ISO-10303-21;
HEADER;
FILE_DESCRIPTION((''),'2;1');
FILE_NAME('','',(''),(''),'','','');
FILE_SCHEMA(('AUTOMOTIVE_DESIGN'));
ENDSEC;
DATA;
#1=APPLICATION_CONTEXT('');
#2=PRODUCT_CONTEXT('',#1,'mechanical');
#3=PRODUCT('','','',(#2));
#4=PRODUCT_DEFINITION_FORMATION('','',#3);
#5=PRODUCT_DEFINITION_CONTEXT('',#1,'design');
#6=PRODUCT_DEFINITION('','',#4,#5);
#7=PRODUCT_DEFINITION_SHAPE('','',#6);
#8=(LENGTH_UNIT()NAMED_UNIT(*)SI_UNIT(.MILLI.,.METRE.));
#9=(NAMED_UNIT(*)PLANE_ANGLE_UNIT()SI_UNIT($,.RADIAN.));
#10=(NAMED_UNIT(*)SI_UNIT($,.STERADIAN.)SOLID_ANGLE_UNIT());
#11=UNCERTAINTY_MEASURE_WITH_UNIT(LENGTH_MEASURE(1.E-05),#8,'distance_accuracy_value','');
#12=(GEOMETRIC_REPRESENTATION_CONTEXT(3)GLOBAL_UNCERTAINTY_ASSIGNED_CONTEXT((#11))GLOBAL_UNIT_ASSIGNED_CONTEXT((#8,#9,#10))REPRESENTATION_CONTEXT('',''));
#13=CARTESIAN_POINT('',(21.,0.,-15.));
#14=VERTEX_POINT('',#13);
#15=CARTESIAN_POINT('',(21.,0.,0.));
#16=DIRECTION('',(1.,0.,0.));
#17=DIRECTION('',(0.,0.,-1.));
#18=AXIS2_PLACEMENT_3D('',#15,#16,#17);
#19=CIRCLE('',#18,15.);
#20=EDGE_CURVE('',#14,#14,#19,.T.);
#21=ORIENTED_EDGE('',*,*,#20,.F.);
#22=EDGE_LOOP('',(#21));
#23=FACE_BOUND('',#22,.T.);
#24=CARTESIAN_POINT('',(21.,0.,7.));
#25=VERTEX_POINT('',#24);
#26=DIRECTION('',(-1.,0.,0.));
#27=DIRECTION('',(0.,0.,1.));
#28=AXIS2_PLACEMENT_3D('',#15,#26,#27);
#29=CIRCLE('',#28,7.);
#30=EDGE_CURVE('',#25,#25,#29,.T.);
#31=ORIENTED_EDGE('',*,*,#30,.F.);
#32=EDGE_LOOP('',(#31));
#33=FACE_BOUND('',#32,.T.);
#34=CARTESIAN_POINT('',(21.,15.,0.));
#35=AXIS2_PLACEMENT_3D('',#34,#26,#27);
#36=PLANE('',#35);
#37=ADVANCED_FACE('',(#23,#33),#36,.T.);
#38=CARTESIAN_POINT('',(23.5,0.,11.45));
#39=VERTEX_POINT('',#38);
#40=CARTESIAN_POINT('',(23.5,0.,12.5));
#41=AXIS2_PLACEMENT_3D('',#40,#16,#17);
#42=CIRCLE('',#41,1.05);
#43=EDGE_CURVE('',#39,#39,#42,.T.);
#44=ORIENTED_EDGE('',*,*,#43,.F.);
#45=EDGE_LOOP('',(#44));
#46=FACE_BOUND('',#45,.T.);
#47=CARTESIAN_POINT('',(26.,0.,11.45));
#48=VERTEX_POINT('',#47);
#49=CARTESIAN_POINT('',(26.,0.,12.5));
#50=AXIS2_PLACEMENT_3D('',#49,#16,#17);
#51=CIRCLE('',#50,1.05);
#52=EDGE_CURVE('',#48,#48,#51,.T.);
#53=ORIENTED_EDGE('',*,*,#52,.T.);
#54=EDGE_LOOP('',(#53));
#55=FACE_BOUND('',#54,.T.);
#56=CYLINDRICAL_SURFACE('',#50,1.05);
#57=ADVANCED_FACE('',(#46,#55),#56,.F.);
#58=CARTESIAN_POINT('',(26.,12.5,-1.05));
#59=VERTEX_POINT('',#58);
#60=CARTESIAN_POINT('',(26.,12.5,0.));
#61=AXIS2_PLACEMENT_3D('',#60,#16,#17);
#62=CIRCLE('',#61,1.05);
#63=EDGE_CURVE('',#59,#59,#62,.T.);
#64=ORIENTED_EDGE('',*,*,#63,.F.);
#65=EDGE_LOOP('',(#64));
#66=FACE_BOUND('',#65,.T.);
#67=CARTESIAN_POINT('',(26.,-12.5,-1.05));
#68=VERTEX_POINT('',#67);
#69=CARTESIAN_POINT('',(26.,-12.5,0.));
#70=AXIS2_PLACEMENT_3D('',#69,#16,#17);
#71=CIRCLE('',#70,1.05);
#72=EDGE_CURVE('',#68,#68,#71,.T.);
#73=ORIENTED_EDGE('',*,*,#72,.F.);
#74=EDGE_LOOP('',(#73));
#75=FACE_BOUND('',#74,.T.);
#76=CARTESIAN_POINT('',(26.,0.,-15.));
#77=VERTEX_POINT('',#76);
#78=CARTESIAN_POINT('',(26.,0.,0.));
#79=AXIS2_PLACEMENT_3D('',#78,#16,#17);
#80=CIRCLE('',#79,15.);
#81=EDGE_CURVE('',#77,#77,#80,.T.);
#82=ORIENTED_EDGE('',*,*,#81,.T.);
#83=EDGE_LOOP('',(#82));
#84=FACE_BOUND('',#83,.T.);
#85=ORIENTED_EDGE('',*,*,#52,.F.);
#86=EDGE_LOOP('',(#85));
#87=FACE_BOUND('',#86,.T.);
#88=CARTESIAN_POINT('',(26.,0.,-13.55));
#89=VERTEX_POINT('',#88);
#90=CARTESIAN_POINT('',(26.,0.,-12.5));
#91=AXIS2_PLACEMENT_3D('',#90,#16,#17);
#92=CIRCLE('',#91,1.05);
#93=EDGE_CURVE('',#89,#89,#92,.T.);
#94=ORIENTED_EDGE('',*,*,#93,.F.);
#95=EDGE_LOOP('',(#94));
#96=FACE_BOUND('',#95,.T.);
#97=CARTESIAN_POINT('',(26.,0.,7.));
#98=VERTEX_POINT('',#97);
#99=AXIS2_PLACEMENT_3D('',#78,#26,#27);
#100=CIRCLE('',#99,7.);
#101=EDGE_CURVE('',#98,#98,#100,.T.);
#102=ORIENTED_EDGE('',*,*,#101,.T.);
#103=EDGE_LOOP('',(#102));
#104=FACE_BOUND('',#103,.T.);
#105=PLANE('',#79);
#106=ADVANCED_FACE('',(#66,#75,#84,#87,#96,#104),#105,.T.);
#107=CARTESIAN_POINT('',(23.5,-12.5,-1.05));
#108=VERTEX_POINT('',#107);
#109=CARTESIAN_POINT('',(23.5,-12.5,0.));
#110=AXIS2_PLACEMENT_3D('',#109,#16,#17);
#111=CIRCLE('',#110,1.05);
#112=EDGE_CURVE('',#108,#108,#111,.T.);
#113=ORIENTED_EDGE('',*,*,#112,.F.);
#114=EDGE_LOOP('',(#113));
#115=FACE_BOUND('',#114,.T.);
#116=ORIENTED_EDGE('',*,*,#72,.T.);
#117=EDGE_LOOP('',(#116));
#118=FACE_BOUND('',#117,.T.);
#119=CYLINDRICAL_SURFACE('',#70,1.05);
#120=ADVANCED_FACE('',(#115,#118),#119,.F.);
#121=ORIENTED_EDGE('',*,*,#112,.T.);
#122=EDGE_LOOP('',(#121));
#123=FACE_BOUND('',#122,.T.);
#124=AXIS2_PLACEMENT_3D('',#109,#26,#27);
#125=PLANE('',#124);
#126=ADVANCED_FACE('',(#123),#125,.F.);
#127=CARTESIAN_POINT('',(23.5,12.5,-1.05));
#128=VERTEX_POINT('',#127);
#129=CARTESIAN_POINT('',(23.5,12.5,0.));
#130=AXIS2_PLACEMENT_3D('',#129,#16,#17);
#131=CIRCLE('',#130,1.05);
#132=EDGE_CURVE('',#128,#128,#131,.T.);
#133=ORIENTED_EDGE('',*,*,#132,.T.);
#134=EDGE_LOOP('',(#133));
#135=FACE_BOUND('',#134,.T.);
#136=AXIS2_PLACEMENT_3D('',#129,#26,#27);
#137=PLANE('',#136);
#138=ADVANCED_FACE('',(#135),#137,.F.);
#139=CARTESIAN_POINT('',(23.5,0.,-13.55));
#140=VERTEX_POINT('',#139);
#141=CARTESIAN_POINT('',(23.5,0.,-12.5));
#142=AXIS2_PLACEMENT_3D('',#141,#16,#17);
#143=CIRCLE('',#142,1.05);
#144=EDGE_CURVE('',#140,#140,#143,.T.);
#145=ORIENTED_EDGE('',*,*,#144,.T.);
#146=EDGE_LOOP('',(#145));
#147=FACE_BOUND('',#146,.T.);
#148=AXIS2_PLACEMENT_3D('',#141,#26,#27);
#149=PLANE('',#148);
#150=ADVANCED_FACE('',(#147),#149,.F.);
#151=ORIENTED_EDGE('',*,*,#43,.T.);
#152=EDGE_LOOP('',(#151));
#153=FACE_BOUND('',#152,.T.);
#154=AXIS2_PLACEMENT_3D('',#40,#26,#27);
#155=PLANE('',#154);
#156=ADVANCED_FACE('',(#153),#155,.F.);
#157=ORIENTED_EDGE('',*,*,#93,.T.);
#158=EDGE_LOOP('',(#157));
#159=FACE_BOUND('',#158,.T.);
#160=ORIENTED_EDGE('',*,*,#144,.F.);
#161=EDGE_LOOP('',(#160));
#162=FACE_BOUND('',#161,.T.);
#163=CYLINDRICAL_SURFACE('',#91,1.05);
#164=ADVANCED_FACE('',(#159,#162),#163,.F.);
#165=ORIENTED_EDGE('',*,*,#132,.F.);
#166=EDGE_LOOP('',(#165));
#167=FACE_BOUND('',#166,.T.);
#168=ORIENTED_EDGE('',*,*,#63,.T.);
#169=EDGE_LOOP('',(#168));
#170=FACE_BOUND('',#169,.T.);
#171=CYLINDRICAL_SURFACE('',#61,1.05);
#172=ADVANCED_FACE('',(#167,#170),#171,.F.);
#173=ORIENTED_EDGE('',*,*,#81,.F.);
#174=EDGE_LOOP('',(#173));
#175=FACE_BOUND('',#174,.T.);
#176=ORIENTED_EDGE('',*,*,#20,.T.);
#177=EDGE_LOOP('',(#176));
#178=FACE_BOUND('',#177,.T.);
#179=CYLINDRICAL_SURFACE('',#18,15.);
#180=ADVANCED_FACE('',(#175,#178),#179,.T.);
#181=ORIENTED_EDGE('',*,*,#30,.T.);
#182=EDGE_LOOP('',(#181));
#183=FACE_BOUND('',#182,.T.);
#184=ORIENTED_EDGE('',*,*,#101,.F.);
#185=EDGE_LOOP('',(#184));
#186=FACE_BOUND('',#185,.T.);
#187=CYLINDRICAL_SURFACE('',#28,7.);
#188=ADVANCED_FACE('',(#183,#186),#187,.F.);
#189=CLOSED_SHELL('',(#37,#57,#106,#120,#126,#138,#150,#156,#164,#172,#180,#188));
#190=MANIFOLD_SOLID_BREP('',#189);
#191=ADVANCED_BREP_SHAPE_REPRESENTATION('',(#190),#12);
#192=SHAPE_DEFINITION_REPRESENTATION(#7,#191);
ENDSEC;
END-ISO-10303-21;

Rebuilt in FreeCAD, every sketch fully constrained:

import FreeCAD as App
import Part
import Sketcher
Q = App.Units.Quantity


def add_polygon(sketch, points):
    """Adds a closed chain of lines whose ends are joined by coincident constraints."""
    first, n = sketch.GeometryCount, len(points)
    for a, b in zip(points, points[1:] + points[:1]):
        sketch.addGeometry(Part.LineSegment(App.Vector(*a, 0), App.Vector(*b, 0)), False)
    for i in range(n):
        sketch.addConstraint(Sketcher.Constraint("Coincident", first + i, 2, first + (i + 1) % n, 1))

doc = App.newDocument("Part")
body = doc.addObject("PartDesign::Body", "Body")

sketch1 = body.newObject("Sketcher::SketchObject", "Sketch")
sketch1.AttachmentSupport = (doc.getObject("XY_Plane"), [""])
sketch1.MapMode = "FlatFace"
add_polygon(sketch1, [(21, 15), (21, 0), (26, 0), (26, 15)])
sketch1.addConstraint([
    Sketcher.Constraint("Vertical", 0),
    Sketcher.Constraint("Horizontal", 1),
    Sketcher.Constraint("Vertical", 2),
    Sketcher.Constraint("Horizontal", 3),
    Sketcher.Constraint("PointOnObject", 0, 2, -1),
    Sketcher.Constraint("DistanceX", 1, 1, 1, 2, Q("5 mm")),
    Sketcher.Constraint("DistanceY", 0, 2, 0, 1, Q("15 mm")),
    Sketcher.Constraint("DistanceX", -1, 1, 0, 2, Q("21 mm")),
])
revolution = body.newObject("PartDesign::Revolution", "Revolution")
revolution.Profile = sketch1
revolution.ReferenceAxis = (sketch1, ["H_Axis"])
revolution.Angle = 360

sketch2 = body.newObject("Sketcher::SketchObject", "Sketch001")
sketch2.AttachmentSupport = (doc.getObject("YZ_Plane"), [""])
sketch2.MapMode = "FlatFace"
sketch2.AttachmentOffset = App.Placement(App.Vector(0, 0, 21), App.Rotation())
sketch2.addGeometry(Part.Circle(App.Vector(0, 0, 0), App.Vector(0, 0, 1), 7), False)
sketch2.addConstraint([
    Sketcher.Constraint("Coincident", 0, 3, -1, 1),
    Sketcher.Constraint("Diameter", 0, Q("14 mm")),
])
doc.recompute()
hole = body.newObject("PartDesign::Hole", "Hole")
hole.Profile = sketch2
hole.ThreadType = "None"
hole.Diameter = 14
hole.DepthType = "ThroughAll"
hole.Reversed = True

sketch3 = body.newObject("Sketcher::SketchObject", "Sketch002")
sketch3.AttachmentSupport = (doc.getObject("YZ_Plane"), [""])
sketch3.MapMode = "FlatFace"
sketch3.AttachmentOffset = App.Placement(App.Vector(0, 0, 26), App.Rotation())
sketch3.addGeometry([
    Part.Circle(App.Vector(0, 12.5, 0), App.Vector(0, 0, 1), 1.1),
    Part.Circle(App.Vector(0, -12.5, 0), App.Vector(0, 0, 1), 1.1),
    Part.Circle(App.Vector(-12.5, 0, 0), App.Vector(0, 0, 1), 1.1),
    Part.Circle(App.Vector(12.5, 0, 0), App.Vector(0, 0, 1), 1.1),
], False)
sketch3.addConstraint([
    Sketcher.Constraint("Equal", 0, 1),
    Sketcher.Constraint("Equal", 1, 2),
    Sketcher.Constraint("Equal", 2, 3),
    Sketcher.Constraint("Symmetric", 0, 3, 1, 3, -1, 1),
    Sketcher.Constraint("Symmetric", 2, 3, 3, 3, -1, 1),
    Sketcher.Constraint("PointOnObject", 0, 3, -2),
    Sketcher.Constraint("PointOnObject", 2, 3, -1),
    Sketcher.Constraint("Diameter", 0, Q("2.1 mm")),
    Sketcher.Constraint("DistanceY", 1, 3, 0, 3, Q("25 mm")),
    Sketcher.Constraint("DistanceX", 2, 3, 3, 3, Q("25 mm")),
])
doc.recompute()
hole2 = body.newObject("PartDesign::Hole", "Hole001")
hole2.Profile = sketch3
hole2.ThreadType = "None"
hole2.Diameter = 2.1
hole2.DepthType = "Dimension"
hole2.Depth = 2.5
hole2.DrillPoint = "Flat"

doc.recompute()
